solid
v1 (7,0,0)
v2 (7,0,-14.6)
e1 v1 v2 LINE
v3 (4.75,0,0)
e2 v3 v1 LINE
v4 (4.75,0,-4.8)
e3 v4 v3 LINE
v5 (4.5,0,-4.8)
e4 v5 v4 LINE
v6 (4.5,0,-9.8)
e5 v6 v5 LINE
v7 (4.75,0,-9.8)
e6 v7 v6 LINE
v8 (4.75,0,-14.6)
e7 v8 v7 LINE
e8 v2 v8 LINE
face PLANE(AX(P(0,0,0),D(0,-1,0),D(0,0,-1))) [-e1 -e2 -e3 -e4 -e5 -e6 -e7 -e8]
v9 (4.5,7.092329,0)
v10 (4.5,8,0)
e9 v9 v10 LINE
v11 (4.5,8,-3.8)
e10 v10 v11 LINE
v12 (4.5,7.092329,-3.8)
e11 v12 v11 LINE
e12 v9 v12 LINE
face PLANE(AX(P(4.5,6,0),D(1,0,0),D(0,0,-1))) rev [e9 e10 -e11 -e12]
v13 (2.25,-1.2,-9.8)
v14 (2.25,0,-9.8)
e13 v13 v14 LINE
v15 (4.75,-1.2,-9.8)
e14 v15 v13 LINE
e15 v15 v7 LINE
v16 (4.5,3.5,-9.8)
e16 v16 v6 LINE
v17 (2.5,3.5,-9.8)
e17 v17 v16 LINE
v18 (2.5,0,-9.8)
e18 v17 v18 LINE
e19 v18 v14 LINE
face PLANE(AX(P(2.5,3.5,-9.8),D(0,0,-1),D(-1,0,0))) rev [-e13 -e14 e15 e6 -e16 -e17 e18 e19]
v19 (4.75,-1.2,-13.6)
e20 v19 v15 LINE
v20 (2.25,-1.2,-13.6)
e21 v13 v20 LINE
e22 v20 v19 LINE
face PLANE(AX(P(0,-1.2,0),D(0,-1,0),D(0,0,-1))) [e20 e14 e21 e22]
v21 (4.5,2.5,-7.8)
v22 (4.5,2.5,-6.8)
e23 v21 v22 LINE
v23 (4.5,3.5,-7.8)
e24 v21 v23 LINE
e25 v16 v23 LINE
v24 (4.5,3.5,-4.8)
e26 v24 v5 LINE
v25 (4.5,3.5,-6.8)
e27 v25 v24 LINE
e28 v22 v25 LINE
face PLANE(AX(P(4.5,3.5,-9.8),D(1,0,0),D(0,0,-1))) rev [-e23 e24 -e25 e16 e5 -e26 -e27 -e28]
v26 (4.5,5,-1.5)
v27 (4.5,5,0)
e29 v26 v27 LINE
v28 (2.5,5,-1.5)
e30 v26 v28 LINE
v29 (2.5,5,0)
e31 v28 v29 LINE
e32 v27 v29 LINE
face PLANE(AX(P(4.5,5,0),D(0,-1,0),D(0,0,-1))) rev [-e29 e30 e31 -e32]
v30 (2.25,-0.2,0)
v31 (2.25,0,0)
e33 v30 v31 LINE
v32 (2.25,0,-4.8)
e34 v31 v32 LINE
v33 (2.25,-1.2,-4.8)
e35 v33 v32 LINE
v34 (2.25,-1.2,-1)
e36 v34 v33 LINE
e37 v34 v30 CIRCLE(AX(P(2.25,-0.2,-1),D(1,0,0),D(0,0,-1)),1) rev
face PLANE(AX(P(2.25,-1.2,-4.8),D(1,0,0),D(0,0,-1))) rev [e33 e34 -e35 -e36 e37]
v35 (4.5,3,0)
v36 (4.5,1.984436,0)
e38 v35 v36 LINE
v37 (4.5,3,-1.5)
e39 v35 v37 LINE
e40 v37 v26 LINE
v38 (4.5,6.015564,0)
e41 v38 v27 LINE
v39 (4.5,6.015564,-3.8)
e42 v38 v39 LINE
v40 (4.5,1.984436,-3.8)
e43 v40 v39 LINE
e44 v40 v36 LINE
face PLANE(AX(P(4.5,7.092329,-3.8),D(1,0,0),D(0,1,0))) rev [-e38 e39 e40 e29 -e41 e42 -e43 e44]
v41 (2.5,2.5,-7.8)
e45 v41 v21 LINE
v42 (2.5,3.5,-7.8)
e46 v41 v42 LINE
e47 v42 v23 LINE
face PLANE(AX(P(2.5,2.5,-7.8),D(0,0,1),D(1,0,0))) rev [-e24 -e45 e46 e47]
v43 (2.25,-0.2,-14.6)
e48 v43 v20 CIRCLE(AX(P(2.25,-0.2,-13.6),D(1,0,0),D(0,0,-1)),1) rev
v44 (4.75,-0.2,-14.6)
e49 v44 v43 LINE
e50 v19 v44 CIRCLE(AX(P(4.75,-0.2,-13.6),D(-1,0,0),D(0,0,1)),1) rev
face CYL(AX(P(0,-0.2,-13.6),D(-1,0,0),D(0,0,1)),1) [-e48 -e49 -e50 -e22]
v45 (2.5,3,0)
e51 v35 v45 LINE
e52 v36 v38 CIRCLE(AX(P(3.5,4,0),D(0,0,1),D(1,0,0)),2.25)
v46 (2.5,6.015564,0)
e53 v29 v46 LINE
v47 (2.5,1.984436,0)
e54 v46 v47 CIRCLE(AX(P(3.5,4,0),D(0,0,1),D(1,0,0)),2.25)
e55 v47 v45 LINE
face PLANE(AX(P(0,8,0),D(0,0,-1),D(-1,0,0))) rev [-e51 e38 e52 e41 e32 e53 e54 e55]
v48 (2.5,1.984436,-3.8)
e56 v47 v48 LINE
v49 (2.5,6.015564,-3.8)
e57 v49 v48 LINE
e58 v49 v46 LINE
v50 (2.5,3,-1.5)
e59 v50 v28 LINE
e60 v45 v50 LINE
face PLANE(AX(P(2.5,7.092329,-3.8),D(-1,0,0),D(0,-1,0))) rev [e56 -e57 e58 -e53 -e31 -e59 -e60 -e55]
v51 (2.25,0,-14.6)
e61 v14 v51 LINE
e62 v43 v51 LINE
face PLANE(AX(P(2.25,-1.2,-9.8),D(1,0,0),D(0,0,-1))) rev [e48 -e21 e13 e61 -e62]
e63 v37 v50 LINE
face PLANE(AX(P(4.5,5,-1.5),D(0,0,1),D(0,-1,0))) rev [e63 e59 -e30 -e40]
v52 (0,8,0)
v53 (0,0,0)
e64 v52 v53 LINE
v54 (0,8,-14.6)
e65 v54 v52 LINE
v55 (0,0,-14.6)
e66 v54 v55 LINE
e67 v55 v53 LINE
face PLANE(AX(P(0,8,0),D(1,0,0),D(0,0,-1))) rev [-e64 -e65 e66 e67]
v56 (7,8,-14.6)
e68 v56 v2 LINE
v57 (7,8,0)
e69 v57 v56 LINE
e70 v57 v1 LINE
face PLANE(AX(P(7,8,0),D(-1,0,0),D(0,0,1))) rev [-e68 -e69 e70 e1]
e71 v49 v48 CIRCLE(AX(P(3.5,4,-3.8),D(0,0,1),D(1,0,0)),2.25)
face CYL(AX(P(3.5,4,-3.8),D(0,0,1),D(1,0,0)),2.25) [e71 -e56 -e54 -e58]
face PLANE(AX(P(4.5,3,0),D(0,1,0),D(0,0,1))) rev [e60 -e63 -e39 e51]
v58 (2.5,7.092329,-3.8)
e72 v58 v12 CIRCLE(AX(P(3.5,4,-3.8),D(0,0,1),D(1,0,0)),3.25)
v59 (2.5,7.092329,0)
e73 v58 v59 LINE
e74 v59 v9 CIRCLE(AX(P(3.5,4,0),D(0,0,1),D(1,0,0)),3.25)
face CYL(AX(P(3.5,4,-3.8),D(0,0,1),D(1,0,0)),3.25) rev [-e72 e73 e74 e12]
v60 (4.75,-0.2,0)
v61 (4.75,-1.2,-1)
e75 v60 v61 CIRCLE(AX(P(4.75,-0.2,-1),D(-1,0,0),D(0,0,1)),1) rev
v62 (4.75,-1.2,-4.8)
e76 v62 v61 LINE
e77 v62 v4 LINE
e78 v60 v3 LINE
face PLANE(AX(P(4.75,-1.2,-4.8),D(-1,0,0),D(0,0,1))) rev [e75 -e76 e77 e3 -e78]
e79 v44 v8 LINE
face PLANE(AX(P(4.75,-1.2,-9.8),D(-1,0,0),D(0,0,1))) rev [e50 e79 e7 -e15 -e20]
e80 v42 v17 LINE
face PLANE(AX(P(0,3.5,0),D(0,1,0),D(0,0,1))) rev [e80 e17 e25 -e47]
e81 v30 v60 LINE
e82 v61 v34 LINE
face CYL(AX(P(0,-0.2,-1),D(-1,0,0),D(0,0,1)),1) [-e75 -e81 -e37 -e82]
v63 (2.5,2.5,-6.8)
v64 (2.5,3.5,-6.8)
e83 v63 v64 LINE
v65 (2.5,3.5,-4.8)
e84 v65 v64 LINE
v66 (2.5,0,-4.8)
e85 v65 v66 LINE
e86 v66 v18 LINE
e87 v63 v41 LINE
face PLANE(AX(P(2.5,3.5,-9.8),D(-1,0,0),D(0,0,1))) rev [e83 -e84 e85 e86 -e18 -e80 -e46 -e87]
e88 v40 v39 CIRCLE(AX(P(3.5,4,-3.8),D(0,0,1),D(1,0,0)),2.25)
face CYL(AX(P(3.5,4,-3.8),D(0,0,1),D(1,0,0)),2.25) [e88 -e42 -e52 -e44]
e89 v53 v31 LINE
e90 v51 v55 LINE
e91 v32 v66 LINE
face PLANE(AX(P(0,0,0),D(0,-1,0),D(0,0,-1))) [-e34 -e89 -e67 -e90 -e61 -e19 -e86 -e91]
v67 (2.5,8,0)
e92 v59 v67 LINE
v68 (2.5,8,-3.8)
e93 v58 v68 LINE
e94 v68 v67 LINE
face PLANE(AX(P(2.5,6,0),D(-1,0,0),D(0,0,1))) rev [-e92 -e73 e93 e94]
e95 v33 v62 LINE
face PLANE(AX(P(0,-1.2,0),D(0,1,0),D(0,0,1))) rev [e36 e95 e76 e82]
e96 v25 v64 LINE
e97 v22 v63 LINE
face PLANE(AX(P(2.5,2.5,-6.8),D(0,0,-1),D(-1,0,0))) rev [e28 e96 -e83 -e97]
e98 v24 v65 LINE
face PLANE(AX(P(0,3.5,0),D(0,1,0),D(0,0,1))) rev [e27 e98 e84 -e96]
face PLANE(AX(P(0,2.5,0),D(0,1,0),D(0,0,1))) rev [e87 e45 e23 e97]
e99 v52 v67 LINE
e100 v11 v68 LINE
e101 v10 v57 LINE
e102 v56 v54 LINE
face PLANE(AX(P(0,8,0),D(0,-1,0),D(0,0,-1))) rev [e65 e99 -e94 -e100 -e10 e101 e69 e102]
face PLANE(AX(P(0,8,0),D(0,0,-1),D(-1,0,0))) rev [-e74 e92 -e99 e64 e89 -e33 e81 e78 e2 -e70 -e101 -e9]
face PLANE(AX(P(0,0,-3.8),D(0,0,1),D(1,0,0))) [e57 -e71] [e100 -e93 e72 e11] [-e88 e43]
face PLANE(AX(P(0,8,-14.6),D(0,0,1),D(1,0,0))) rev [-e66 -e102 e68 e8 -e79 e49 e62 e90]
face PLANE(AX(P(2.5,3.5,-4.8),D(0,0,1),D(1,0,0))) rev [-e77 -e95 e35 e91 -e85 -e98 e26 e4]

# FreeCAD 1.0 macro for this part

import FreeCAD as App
import Part
import Sketcher
from FreeCAD import Vector


def edges_at(feature, points):
    """Names of the edges that pass closest to the given points."""
    edges = feature.Shape.Edges
    near = lambda p: min(range(len(edges)), key=lambda i: edges[i].distToShape(Part.Vertex(*p))[0])
    return sorted({f"Edge{near(p) + 1}" for p in points})

doc = App.newDocument("Part")
body = doc.addObject("PartDesign::Body", "Body")

sketch1 = body.newObject("Sketcher::SketchObject", "Sketch")
sketch1.AttachmentSupport = (doc.getObject("XZ_Plane"), [""])
sketch1.MapMode = "FlatFace"
sketch1.addGeometry([
    Part.LineSegment(Vector(0, -15, 0), Vector(0, 0, 0)),
    Part.LineSegment(Vector(0, 0, 0), Vector(7, 0, 0)),
    Part.LineSegment(Vector(7, 0, 0), Vector(7, -15, 0)),
    Part.LineSegment(Vector(7, -15, 0), Vector(0, -15, 0)),
], False)
sketch1.addConstraint([
    Sketcher.Constraint("Coincident", 0, 2, 1, 1),
    Sketcher.Constraint("Coincident", 1, 2, 2, 1),
    Sketcher.Constraint("Coincident", 2, 2, 3, 1),
    Sketcher.Constraint("Coincident", 3, 2, 0, 1),
    Sketcher.Constraint("Vertical", 0),
    Sketcher.Constraint("Horizontal", 1),
    Sketcher.Constraint("Vertical", 2),
    Sketcher.Constraint("Horizontal", 3),
    Sketcher.Constraint("Coincident", 0, 2, -1, 1),
    Sketcher.Constraint("DistanceX", 1, 1, 1, 2, 7.0),
    Sketcher.Constraint("DistanceY", 0, 1, 0, 2, 14.6),
])
pad1 = body.newObject("PartDesign::Pad", "Pad")
pad1.Profile = sketch1
pad1.Length = 8
pad1.Reversed = True

sketch2 = body.newObject("Sketcher::SketchObject", "Sketch001")
sketch2.AttachmentSupport = (doc.getObject("XZ_Plane"), [""])
sketch2.MapMode = "FlatFace"
sketch2.addGeometry([
    Part.LineSegment(Vector(2.5, -4.8, 0), Vector(2.5, -9.8, 0)),
    Part.LineSegment(Vector(2.5, -9.8, 0), Vector(4.5, -9.8, 0)),
    Part.LineSegment(Vector(4.5, -9.8, 0), Vector(4.5, -4.8, 0)),
    Part.LineSegment(Vector(4.5, -4.8, 0), Vector(2.5, -4.8, 0)),
], False)
sketch2.addConstraint([
    Sketcher.Constraint("Coincident", 0, 2, 1, 1),
    Sketcher.Constraint("Coincident", 1, 2, 2, 1),
    Sketcher.Constraint("Coincident", 2, 2, 3, 1),
    Sketcher.Constraint("Coincident", 3, 2, 0, 1),
    Sketcher.Constraint("Vertical", 0),
    Sketcher.Constraint("Horizontal", 1),
    Sketcher.Constraint("Vertical", 2),
    Sketcher.Constraint("Horizontal", 3),
    Sketcher.Constraint("DistanceX", 1, 1, 1, 2, 2.0),
    Sketcher.Constraint("DistanceY", 0, 2, 0, 1, 5.0),
    Sketcher.Constraint("DistanceX", -1, 1, 0, 2, 2.5),
    Sketcher.Constraint("DistanceY", 0, 2, -1, 1, 9.8),
])
pocket1 = body.newObject("PartDesign::Pocket", "Pocket")
pocket1.Profile = sketch2
pocket1.Length = 3.5

sketch3 = body.newObject("Sketcher::SketchObject", "Sketch002")
sketch3.AttachmentSupport = (doc.getObject("XY_Plane"), [""])
sketch3.MapMode = "FlatFace"
sketch3.addGeometry([
    Part.Circle(Vector(3.5, 4, 0), Vector(0, 0, 1), 3.2),
    Part.Circle(Vector(3.5, 4, 0), Vector(0, 0, 1), 2.2),
], False)
sketch3.addConstraint([
    Sketcher.Constraint("Coincident", 1, 3, 0, 3),
    Sketcher.Constraint("Diameter", 0, 6.5),
    Sketcher.Constraint("Diameter", 1, 4.5),
    Sketcher.Constraint("DistanceY", -1, 1, 0, 3, 4.0),
    Sketcher.Constraint("DistanceX", -1, 1, 0, 3, 3.5),
])
pocket2 = body.newObject("PartDesign::Pocket", "Pocket001")
pocket2.Profile = sketch3
pocket2.Length = 3.8

sketch4 = body.newObject("Sketcher::SketchObject", "Sketch003")
sketch4.AttachmentSupport = (doc.getObject("XY_Plane"), [""])
sketch4.MapMode = "FlatFace"
sketch4.addGeometry([
    Part.LineSegment(Vector(2.5, 7.1, 0), Vector(2.5, 0.9, 0)),
    Part.LineSegment(Vector(2.5, 0.9, 0), Vector(4.5, 0.9, 0)),
    Part.LineSegment(Vector(4.5, 0.9, 0), Vector(4.5, 7.1, 0)),
    Part.LineSegment(Vector(4.5, 7.1, 0), Vector(2.5, 7.1, 0)),
], False)
sketch4.addConstraint([
    Sketcher.Constraint("Coincident", 0, 2, 1, 1),
    Sketcher.Constraint("Coincident", 1, 2, 2, 1),
    Sketcher.Constraint("Coincident", 2, 2, 3, 1),
    Sketcher.Constraint("Coincident", 3, 2, 0, 1),
    Sketcher.Constraint("Vertical", 0),
    Sketcher.Constraint("Horizontal", 1),
    Sketcher.Constraint("Vertical", 2),
    Sketcher.Constraint("Horizontal", 3),
    Sketcher.Constraint("DistanceX", 1, 1, 1, 2, 2.0),
    Sketcher.Constraint("DistanceX", -1, 1, 0, 2, 2.5),
    Sketcher.Constraint("DistanceY", 0, 2, 0, 1, 6.184658),
    Sketcher.Constraint("DistanceY", -1, 1, 0, 2, 0.907671),
])
pocket3 = body.newObject("PartDesign::Pocket", "Pocket002")
pocket3.Profile = sketch4
pocket3.Length = 3.8

sketch5 = body.newObject("Sketcher::SketchObject", "Sketch004")
sketch5.AttachmentSupport = (doc.getObject("YZ_Plane"), [""])
sketch5.MapMode = "FlatFace"
sketch5.AttachmentOffset = App.Placement(Vector(0, 0, 2.5), App.Rotation())
sketch5.addGeometry([
    Part.LineSegment(Vector(5, 0, 0), Vector(3, 0, 0)),
    Part.LineSegment(Vector(3, 0, 0), Vector(3, -1.5, 0)),
    Part.LineSegment(Vector(3, -1.5, 0), Vector(5, -1.5, 0)),
    Part.LineSegment(Vector(5, -1.5, 0), Vector(5, 0, 0)),
], False)
sketch5.addConstraint([
    Sketcher.Constraint("Coincident", 0, 2, 1, 1),
    Sketcher.Constraint("Coincident", 1, 2, 2, 1),
    Sketcher.Constraint("Coincident", 2, 2, 3, 1),
    Sketcher.Constraint("Coincident", 3, 2, 0, 1),
    Sketcher.Constraint("Horizontal", 0),
    Sketcher.Constraint("Vertical", 1),
    Sketcher.Constraint("Horizontal", 2),
    Sketcher.Constraint("Vertical", 3),
    Sketcher.Constraint("PointOnObject", 0, 2, -1),
    Sketcher.Constraint("DistanceX", 0, 2, 0, 1, 2.0),
    Sketcher.Constraint("DistanceY", 1, 2, 1, 1, 1.5),
    Sketcher.Constraint("DistanceX", -1, 1, 0, 2, 3.0),
])
pad2 = body.newObject("PartDesign::Pad", "Pad001")
pad2.Profile = sketch5
pad2.Length = 2

sketch6 = body.newObject("Sketcher::SketchObject", "Sketch005")
sketch6.AttachmentSupport = (doc.getObject("XZ_Plane"), [""])
sketch6.MapMode = "FlatFace"
sketch6.addGeometry([
    Part.LineSegment(Vector(2.2, 0, 0), Vector(2.2, -4.8, 0)),
    Part.LineSegment(Vector(2.2, -4.8, 0), Vector(4.8, -4.8, 0)),
    Part.LineSegment(Vector(4.8, -4.8, 0), Vector(4.8, 0, 0)),
    Part.LineSegment(Vector(4.8, 0, 0), Vector(2.2, 0, 0)),
    Part.LineSegment(Vector(2.2, -9.8, 0), Vector(2.2, -14.6, 0)),
    Part.LineSegment(Vector(2.2, -14.6, 0), Vector(4.8, -14.6, 0)),
    Part.LineSegment(Vector(4.8, -14.6, 0), Vector(4.8, -9.8, 0)),
    Part.LineSegment(Vector(4.8, -9.8, 0), Vector(2.2, -9.8, 0)),
], False)
sketch6.addConstraint([
    Sketcher.Constraint("Coincident", 0, 2, 1, 1),
    Sketcher.Constraint("Coincident", 1, 2, 2, 1),
    Sketcher.Constraint("Coincident", 2, 2, 3, 1),
    Sketcher.Constraint("Coincident", 3, 2, 0, 1),
    Sketcher.Constraint("Coincident", 4, 2, 5, 1),
    Sketcher.Constraint("Coincident", 5, 2, 6, 1),
    Sketcher.Constraint("Coincident", 6, 2, 7, 1),
    Sketcher.Constraint("Coincident", 7, 2, 4, 1),
    Sketcher.Constraint("Vertical", 0),
    Sketcher.Constraint("Horizontal", 1),
    Sketcher.Constraint("Vertical", 2),
    Sketcher.Constraint("Horizontal", 3),
    Sketcher.Constraint("Vertical", 4),
    Sketcher.Constraint("Horizontal", 5),
    Sketcher.Constraint("Vertical", 6),
    Sketcher.Constraint("Horizontal", 7),
    Sketcher.Constraint("PointOnObject", 2, 2, -1),
    Sketcher.Constraint("Vertical", 3, 2, 4, 2),
    Sketcher.Constraint("Vertical", 2, 2, 5, 2),
    Sketcher.Constraint("Equal", 2, 4),
    Sketcher.Constraint("DistanceX", 1, 1, 1, 2, 2.5),
    Sketcher.Constraint("DistanceY", 0, 2, 0, 1, 4.8),
    Sketcher.Constraint("DistanceY", 6, 2, 1, 2, 5.0),
    Sketcher.Constraint("DistanceX", -1, 1, 0, 2, 2.25),
])
pad3 = body.newObject("PartDesign::Pad", "Pad002")
pad3.Profile = sketch6
pad3.Length = 1.2

sketch7 = body.newObject("Sketcher::SketchObject", "Sketch006")
sketch7.AttachmentSupport = (doc.getObject("XZ_Plane"), [""])
sketch7.MapMode = "FlatFace"
sketch7.AttachmentOffset = App.Placement(Vector(0, 0, -3.5), App.Rotation())
sketch7.addGeometry([
    Part.LineSegment(Vector(2.5, -6.8, 0), Vector(2.5, -7.8, 0)),
    Part.LineSegment(Vector(2.5, -7.8, 0), Vector(4.5, -7.8, 0)),
    Part.LineSegment(Vector(4.5, -7.8, 0), Vector(4.5, -6.8, 0)),
    Part.LineSegment(Vector(4.5, -6.8, 0), Vector(2.5, -6.8, 0)),
], False)
sketch7.addConstraint([
    Sketcher.Constraint("Coincident", 0, 2, 1, 1),
    Sketcher.Constraint("Coincident", 1, 2, 2, 1),
    Sketcher.Constraint("Coincident", 2, 2, 3, 1),
    Sketcher.Constraint("Coincident", 3, 2, 0, 1),
    Sketcher.Constraint("Vertical", 0),
    Sketcher.Constraint("Horizontal", 1),
    Sketcher.Constraint("Vertical", 2),
    Sketcher.Constraint("Horizontal", 3),
    Sketcher.Constraint("DistanceX", 1, 1, 1, 2, 2.0),
    Sketcher.Constraint("DistanceY", 0, 2, 0, 1, 1.0),
    Sketcher.Constraint("DistanceX", -1, 1, 0, 2, 2.5),
    Sketcher.Constraint("DistanceY", 0, 2, -1, 1, 7.8),
])
pad4 = body.newObject("PartDesign::Pad", "Pad003")
pad4.Profile = sketch7
pad4.Length = 1
doc.recompute()

fillet = body.newObject("PartDesign::Fillet", "Fillet")
fillet.Base = (pad4, edges_at(pad4, [(3.5, -1.2, -14.6), (3.5, -1.2, 0)]))
fillet.Radius = 1

sketch8 = body.newObject("Sketcher::SketchObject", "Sketch007")
sketch8.AttachmentSupport = (doc.getObject("XZ_Plane"), [""])
sketch8.MapMode = "FlatFace"
sketch8.AttachmentOffset = App.Placement(Vector(0, 0, -8), App.Rotation())
sketch8.addGeometry([
    Part.LineSegment(Vector(2.5, -3.8, 0), Vector(2.5, 0, 0)),
    Part.LineSegment(Vector(2.5, 0, 0), Vector(4.5, 0, 0)),
    Part.LineSegment(Vector(4.5, 0, 0), Vector(4.5, -3.8, 0)),
    Part.LineSegment(Vector(4.5, -3.8, 0), Vector(2.5, -3.8, 0)),
], False)
sketch8.addConstraint([
    Sketcher.Constraint("Coincident", 0, 2, 1, 1),
    Sketcher.Constraint("Coincident", 1, 2, 2, 1),
    Sketcher.Constraint("Coincident", 2, 2, 3, 1),
    Sketcher.Constraint("Coincident", 3, 2, 0, 1),
    Sketcher.Constraint("Vertical", 0),
    Sketcher.Constraint("Horizontal", 1),
    Sketcher.Constraint("Vertical", 2),
    Sketcher.Constraint("Horizontal", 3),
    Sketcher.Constraint("PointOnObject", 0, 2, -1),
    Sketcher.Constraint("DistanceX", 1, 1, 1, 2, 2.0),
    Sketcher.Constraint("DistanceY", 0, 1, 0, 2, 3.8),
    Sketcher.Constraint("DistanceX", -1, 1, 0, 2, 2.5),
])
pocket4 = body.newObject("PartDesign::Pocket", "Pocket003")
pocket4.Profile = sketch8
pocket4.Length = 2
pocket4.Reversed = True

doc.recompute()
